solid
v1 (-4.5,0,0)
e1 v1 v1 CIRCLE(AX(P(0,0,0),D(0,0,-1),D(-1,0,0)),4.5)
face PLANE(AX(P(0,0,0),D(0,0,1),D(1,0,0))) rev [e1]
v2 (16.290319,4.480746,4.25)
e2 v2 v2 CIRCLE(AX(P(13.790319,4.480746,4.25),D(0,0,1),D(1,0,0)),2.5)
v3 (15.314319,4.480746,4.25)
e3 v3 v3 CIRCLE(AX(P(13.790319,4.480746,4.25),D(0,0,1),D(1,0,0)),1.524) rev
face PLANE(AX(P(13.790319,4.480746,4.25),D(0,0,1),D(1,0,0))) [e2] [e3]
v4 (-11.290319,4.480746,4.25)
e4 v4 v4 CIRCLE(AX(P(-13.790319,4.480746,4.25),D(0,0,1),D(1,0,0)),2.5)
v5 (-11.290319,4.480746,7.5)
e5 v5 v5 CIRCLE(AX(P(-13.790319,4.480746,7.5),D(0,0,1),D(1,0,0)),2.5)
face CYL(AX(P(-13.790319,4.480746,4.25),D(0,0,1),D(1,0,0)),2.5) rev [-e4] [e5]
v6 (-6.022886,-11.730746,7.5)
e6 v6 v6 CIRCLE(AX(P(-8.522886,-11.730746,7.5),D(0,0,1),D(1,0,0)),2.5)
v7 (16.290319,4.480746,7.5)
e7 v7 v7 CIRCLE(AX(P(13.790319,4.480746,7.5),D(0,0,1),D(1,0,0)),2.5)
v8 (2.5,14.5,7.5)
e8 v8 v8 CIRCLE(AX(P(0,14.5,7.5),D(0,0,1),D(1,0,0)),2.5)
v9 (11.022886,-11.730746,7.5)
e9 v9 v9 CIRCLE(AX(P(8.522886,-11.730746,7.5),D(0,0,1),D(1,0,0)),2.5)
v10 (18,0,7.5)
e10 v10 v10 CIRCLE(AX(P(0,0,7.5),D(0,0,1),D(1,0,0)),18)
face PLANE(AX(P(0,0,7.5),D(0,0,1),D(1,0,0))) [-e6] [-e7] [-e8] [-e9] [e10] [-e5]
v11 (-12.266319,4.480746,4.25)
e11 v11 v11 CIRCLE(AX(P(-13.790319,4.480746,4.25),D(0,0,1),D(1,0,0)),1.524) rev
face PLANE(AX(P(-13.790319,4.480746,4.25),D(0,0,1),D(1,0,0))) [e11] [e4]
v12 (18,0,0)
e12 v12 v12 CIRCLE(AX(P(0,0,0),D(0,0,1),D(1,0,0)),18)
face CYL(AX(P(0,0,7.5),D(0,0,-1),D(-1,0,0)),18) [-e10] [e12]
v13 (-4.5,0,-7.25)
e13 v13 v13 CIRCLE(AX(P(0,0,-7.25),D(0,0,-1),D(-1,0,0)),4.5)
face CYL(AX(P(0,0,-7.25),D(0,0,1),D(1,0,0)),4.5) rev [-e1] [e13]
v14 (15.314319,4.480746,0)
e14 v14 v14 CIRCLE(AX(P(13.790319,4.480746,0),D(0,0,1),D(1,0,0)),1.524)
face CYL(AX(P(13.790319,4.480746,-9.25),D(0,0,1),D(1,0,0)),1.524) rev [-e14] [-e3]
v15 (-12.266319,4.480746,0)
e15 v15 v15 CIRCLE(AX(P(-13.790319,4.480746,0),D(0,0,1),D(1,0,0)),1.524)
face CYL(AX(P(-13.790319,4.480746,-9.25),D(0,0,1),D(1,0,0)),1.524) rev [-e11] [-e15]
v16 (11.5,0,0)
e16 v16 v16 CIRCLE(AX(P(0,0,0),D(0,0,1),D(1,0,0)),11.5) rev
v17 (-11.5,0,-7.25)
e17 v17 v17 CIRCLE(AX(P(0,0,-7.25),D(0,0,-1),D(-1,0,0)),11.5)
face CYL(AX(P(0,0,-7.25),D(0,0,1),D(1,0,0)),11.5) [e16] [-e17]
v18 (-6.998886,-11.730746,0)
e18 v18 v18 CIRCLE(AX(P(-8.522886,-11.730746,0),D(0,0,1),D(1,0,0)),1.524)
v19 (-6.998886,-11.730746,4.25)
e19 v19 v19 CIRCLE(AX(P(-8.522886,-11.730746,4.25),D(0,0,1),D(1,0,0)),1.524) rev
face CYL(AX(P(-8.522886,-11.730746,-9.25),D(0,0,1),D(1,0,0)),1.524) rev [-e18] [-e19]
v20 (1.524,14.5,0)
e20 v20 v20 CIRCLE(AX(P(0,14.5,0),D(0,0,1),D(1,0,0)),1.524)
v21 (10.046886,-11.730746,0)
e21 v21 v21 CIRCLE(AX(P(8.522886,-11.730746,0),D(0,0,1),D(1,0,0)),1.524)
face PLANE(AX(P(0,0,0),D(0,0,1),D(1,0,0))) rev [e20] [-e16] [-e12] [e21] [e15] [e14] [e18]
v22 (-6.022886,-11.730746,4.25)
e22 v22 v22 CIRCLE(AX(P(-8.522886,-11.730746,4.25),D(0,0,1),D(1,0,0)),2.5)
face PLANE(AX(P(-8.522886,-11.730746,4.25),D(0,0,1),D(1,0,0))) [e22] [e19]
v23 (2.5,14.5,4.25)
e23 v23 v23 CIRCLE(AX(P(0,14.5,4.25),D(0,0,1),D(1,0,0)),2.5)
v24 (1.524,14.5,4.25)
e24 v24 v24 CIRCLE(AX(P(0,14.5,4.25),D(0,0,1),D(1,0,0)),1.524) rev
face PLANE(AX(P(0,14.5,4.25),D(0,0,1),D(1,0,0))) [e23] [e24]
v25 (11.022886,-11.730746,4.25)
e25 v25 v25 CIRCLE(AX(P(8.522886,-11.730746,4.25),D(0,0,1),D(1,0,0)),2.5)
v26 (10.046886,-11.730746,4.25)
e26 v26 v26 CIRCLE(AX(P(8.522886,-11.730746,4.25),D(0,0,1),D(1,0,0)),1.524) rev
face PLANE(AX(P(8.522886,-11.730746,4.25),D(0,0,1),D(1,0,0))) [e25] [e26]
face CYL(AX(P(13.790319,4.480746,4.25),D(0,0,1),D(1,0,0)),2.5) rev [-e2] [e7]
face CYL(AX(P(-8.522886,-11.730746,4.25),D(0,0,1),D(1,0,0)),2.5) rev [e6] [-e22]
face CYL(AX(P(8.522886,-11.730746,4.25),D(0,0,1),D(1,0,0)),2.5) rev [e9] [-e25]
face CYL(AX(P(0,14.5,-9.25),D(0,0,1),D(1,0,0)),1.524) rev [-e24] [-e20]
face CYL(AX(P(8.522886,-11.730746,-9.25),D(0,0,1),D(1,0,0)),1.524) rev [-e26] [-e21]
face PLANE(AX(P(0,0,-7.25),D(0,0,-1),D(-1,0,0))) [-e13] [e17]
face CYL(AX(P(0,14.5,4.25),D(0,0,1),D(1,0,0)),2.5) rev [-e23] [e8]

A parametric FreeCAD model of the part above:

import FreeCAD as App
import Part
import Sketcher
from FreeCAD import Vector

doc = App.newDocument("Part")
body = doc.addObject("PartDesign::Body", "Body")

sketch1 = body.newObject("Sketcher::SketchObject", "Sketch")
sketch1.AttachmentSupport = (doc.getObject("XY_Plane"), [""])
sketch1.MapMode = "FlatFace"
sketch1.addGeometry(Part.Circle(Vector(0, 0, 0), Vector(0, 0, 1), 18), False)
sketch1.addConstraint([
    Sketcher.Constraint("Coincident", 0, 3, -1, 1),
    Sketcher.Constraint("Diameter", 0, 36.0),
])
pad1 = body.newObject("PartDesign::Pad", "Pad")
pad1.Profile = sketch1
pad1.Length = 7.5

sketch2 = body.newObject("Sketcher::SketchObject", "Sketch001")
sketch2.AttachmentSupport = (doc.getObject("XY_Plane"), [""])
sketch2.MapMode = "FlatFace"
sketch2.addGeometry([
    Part.Circle(Vector(0, 0, 0), Vector(0, 0, 1), 11.5),
    Part.Circle(Vector(0, 0, 0), Vector(0, 0, 1), 4.5),
], False)
sketch2.addConstraint([
    Sketcher.Constraint("Coincident", 0, 3, -1, 1),
    Sketcher.Constraint("Coincident", 1, 3, -1, 1),
    Sketcher.Constraint("Diameter", 0, 23.0),
    Sketcher.Constraint("Diameter", 1, 9.0),
])
pad2 = body.newObject("PartDesign::Pad", "Pad001")
pad2.Profile = sketch2
pad2.Length = 7.25
pad2.Reversed = True

sketch3 = body.newObject("Sketcher::SketchObject", "Sketch002")
sketch3.AttachmentSupport = (doc.getObject("XY_Plane"), [""])
sketch3.MapMode = "FlatFace"
sketch3.AttachmentOffset = App.Placement(Vector(0, 0, 7.5), App.Rotation())
sketch3.addGeometry([
    Part.Circle(Vector(0, 14.5, 0), Vector(0, 0, 1), 1.5),
    Part.Circle(Vector(13.8, 4.5, 0), Vector(0, 0, 1), 1.5),
    Part.Circle(Vector(8.5, -11.7, 0), Vector(0, 0, 1), 1.5),
    Part.Circle(Vector(-8.5, -11.7, 0), Vector(0, 0, 1), 1.5),
    Part.Circle(Vector(-13.8, 4.5, 0), Vector(0, 0, 1), 1.5),
], False)
sketch3.addConstraint([
    Sketcher.Constraint("Equal", 0, 1),
    Sketcher.Constraint("Equal", 1, 2),
    Sketcher.Constraint("Equal", 2, 3),
    Sketcher.Constraint("Equal", 3, 4),
    Sketcher.Constraint("Symmetric", 2, 3, 3, 3, -2),
    Sketcher.Constraint("Symmetric", 1, 3, 4, 3, -2),
    Sketcher.Constraint("PointOnObject", 0, 3, -2),
    Sketcher.Constraint("Diameter", 0, 3.048),
    Sketcher.Constraint("DistanceY", -1, 1, 0, 3, 14.5),
    Sketcher.Constraint("DistanceX", -1, 1, 1, 3, 13.790319),
    Sketcher.Constraint("DistanceY", -1, 1, 1, 3, 4.480746),
    Sketcher.Constraint("DistanceX", -1, 1, 2, 3, 8.522886),
    Sketcher.Constraint("DistanceY", 2, 3, -1, 1, 11.730746),
])
pocket1 = body.newObject("PartDesign::Pocket", "Pocket")
pocket1.Profile = sketch3
pocket1.Length = 16.75

sketch4 = body.newObject("Sketcher::SketchObject", "Sketch003")
sketch4.AttachmentSupport = (doc.getObject("XY_Plane"), [""])
sketch4.MapMode = "FlatFace"
sketch4.AttachmentOffset = App.Placement(Vector(0, 0, 7.5), App.Rotation())
sketch4.addGeometry([
    Part.Circle(Vector(0, 14.5, 0), Vector(0, 0, 1), 2.5),
    Part.Circle(Vector(13.8, 4.5, 0), Vector(0, 0, 1), 2.5),
    Part.Circle(Vector(8.5, -11.7, 0), Vector(0, 0, 1), 2.5),
    Part.Circle(Vector(-8.5, -11.7, 0), Vector(0, 0, 1), 2.5),
    Part.Circle(Vector(-13.8, 4.5, 0), Vector(0, 0, 1), 2.5),
], False)
sketch4.addConstraint([
    Sketcher.Constraint("Equal", 0, 1),
    Sketcher.Constraint("Equal", 1, 2),
    Sketcher.Constraint("Equal", 2, 3),
    Sketcher.Constraint("Equal", 3, 4),
    Sketcher.Constraint("Symmetric", 2, 3, 3, 3, -2),
    Sketcher.Constraint("Symmetric", 1, 3, 4, 3, -2),
    Sketcher.Constraint("PointOnObject", 0, 3, -2),
    Sketcher.Constraint("Diameter", 0, 5.0),
    Sketcher.Constraint("DistanceY", -1, 1, 0, 3, 14.5),
    Sketcher.Constraint("DistanceX", -1, 1, 1, 3, 13.790319),
    Sketcher.Constraint("DistanceY", -1, 1, 1, 3, 4.480746),
    Sketcher.Constraint("DistanceX", -1, 1, 2, 3, 8.522886),
    Sketcher.Constraint("DistanceY", 2, 3, -1, 1, 11.730746),
])
pocket2 = body.newObject("PartDesign::Pocket", "Pocket001")
pocket2.Profile = sketch4
pocket2.Length = 3.25

doc.recompute()
